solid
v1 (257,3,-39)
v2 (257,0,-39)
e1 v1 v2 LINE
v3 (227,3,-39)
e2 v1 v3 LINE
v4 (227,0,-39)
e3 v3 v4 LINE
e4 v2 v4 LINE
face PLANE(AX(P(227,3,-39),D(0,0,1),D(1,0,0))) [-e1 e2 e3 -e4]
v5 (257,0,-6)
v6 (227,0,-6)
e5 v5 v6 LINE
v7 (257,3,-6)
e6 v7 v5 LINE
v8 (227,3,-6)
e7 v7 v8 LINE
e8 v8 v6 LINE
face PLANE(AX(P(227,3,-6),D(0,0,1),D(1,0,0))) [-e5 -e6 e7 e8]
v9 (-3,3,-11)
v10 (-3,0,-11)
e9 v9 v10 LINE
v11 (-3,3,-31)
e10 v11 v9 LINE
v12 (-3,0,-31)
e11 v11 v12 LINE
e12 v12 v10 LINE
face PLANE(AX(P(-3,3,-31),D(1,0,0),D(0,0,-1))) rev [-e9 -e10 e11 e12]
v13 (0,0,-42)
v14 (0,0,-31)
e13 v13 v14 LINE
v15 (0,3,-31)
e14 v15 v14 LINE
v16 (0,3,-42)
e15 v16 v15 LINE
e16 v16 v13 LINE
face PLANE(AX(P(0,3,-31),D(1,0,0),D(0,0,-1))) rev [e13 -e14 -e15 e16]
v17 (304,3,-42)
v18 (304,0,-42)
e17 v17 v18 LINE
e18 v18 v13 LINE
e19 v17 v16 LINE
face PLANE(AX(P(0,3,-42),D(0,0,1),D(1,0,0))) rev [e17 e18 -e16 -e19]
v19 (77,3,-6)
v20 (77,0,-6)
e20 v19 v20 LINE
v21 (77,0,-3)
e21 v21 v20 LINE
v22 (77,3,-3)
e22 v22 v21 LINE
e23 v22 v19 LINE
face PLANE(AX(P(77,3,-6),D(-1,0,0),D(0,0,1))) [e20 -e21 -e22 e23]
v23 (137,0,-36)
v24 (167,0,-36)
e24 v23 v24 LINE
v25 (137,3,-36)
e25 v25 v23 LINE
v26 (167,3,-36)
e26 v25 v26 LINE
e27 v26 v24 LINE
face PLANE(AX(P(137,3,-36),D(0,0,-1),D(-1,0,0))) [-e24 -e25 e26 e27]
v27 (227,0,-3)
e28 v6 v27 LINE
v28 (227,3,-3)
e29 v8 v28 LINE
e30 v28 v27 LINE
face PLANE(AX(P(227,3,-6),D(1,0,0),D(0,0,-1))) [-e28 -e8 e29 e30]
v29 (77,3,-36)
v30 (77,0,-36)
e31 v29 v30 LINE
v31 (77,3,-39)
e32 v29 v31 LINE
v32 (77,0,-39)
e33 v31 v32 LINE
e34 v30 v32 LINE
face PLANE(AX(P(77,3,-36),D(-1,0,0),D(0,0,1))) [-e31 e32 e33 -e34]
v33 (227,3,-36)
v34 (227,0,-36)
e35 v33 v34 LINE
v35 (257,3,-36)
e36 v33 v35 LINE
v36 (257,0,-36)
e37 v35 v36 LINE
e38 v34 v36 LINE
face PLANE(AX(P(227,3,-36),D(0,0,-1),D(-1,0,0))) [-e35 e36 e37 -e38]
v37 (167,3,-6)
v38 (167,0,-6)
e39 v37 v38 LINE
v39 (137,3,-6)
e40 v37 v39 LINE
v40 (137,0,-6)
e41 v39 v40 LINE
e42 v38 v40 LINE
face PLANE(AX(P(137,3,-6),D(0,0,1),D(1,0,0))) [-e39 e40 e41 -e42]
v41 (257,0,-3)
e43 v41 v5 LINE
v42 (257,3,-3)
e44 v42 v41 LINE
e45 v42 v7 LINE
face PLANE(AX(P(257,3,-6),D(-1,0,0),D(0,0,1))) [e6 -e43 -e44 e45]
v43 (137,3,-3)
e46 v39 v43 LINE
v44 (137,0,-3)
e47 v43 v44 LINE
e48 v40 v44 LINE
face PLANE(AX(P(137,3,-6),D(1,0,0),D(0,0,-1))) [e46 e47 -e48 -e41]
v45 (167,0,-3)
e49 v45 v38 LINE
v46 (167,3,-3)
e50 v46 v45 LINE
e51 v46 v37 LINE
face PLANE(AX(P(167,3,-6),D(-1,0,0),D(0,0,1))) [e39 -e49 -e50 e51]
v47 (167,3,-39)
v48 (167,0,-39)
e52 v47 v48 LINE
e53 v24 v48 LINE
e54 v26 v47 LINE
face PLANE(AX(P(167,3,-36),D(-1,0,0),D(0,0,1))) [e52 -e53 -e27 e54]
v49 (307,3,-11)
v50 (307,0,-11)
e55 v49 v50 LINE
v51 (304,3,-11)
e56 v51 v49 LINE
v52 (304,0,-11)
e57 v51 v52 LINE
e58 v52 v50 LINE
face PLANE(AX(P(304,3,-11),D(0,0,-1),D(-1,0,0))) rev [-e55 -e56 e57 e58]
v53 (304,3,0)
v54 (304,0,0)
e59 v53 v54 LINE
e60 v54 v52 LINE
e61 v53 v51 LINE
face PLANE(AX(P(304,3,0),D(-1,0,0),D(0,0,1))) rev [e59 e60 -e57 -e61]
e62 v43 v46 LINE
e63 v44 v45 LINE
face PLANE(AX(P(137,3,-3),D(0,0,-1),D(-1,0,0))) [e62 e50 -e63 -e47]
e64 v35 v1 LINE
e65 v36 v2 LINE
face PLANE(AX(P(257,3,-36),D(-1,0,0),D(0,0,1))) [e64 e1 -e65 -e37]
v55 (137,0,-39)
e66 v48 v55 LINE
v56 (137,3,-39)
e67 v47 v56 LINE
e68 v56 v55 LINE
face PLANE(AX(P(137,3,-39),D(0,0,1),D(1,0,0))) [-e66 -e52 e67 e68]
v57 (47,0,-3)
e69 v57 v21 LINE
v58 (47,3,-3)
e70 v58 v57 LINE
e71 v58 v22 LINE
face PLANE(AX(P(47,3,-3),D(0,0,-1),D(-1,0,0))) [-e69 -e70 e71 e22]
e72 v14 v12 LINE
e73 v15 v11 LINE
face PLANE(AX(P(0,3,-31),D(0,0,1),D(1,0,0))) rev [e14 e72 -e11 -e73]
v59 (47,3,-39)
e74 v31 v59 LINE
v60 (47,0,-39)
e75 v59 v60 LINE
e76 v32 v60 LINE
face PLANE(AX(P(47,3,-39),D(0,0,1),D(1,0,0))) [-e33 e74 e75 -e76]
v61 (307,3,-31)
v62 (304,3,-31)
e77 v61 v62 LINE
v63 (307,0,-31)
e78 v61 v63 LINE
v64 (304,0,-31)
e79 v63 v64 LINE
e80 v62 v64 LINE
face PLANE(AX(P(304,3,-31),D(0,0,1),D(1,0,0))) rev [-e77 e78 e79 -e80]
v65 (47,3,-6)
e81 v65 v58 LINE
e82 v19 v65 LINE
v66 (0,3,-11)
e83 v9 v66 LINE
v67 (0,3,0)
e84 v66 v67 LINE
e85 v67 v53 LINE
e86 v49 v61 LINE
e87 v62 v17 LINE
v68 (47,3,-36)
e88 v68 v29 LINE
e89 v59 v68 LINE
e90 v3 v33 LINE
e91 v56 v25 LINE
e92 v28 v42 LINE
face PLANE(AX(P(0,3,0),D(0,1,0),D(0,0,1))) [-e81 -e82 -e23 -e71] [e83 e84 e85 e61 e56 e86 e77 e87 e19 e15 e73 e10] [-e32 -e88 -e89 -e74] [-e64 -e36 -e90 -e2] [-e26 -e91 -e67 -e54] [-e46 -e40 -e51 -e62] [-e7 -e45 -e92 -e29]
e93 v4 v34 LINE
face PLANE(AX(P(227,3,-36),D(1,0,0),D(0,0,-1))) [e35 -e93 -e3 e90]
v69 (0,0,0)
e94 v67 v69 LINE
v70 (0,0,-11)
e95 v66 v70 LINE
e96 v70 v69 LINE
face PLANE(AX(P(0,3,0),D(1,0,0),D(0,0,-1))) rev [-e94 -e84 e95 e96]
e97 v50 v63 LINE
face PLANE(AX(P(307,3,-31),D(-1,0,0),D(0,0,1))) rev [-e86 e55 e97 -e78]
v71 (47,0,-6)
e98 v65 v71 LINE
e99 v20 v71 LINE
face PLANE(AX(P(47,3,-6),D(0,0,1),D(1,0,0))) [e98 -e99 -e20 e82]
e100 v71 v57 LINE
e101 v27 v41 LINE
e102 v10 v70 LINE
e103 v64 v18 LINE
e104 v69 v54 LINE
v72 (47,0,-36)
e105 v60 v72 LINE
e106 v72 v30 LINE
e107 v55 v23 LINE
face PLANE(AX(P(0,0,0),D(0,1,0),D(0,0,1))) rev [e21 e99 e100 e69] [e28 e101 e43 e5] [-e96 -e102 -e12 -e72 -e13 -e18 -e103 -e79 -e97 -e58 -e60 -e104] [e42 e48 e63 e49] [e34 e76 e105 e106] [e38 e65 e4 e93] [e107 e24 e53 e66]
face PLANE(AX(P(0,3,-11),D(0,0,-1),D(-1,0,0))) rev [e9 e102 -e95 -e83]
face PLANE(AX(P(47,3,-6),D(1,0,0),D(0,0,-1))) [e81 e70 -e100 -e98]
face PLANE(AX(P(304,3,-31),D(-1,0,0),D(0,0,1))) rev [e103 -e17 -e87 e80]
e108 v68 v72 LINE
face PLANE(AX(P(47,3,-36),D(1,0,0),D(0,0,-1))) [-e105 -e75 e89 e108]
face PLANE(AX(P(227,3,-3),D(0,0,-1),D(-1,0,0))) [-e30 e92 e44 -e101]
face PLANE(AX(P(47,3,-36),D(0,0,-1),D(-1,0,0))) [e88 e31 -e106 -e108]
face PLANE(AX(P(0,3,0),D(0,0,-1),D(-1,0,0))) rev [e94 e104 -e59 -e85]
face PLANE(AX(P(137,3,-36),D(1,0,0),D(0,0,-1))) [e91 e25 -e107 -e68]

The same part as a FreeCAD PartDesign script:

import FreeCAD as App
import Part
import Sketcher

V = App.Vector
Q = App.Units.Quantity

doc = App.newDocument("Part")
body = doc.addObject("PartDesign::Body", "Body")

# Sketch on XZ plane
sketch1 = body.newObject("Sketcher::SketchObject", "Sketch")
sketch1.AttachmentSupport = (doc.getObject("XZ_Plane"), [""])
sketch1.MapMode = "FlatFace"
sketch1.addGeometry([
    Part.LineSegment(V(0, 0, 0), V(304, 0, 0)),  # 0
    Part.LineSegment(V(304, 0, 0), V(304, -11, 0)),  # 1
    Part.LineSegment(V(304, -11, 0), V(307, -11, 0)),  # 2
    Part.LineSegment(V(307, -11, 0), V(307, -31, 0)),  # 3
    Part.LineSegment(V(307, -31, 0), V(304, -31, 0)),  # 4
    Part.LineSegment(V(304, -31, 0), V(304, -42, 0)),  # 5
    Part.LineSegment(V(304, -42, 0), V(0, -42, 0)),  # 6
    Part.LineSegment(V(0, -42, 0), V(0, -31, 0)),  # 7
    Part.LineSegment(V(0, -31, 0), V(-3, -31, 0)),  # 8
    Part.LineSegment(V(-3, -31, 0), V(-3, -11, 0)),  # 9
    Part.LineSegment(V(-3, -11, 0), V(0, -11, 0)),  # 10
    Part.LineSegment(V(0, -11, 0), V(0, 0, 0)),  # 11
    Part.LineSegment(V(77, -3, 0), V(47, -3, 0)),  # 12
    Part.LineSegment(V(47, -3, 0), V(47, -6, 0)),  # 13
    Part.LineSegment(V(47, -6, 0), V(77, -6, 0)),  # 14
    Part.LineSegment(V(77, -6, 0), V(77, -3, 0)),  # 15
    Part.LineSegment(V(167, -3, 0), V(137, -3, 0)),  # 16
    Part.LineSegment(V(137, -3, 0), V(137, -6, 0)),  # 17
    Part.LineSegment(V(137, -6, 0), V(167, -6, 0)),  # 18
    Part.LineSegment(V(167, -6, 0), V(167, -3, 0)),  # 19
    Part.LineSegment(V(257, -3, 0), V(227, -3, 0)),  # 20
    Part.LineSegment(V(227, -3, 0), V(227, -6, 0)),  # 21
    Part.LineSegment(V(227, -6, 0), V(257, -6, 0)),  # 22
    Part.LineSegment(V(257, -6, 0), V(257, -3, 0)),  # 23
    Part.LineSegment(V(77, -36, 0), V(47, -36, 0)),  # 24
    Part.LineSegment(V(47, -36, 0), V(47, -39, 0)),  # 25
    Part.LineSegment(V(47, -39, 0), V(77, -39, 0)),  # 26
    Part.LineSegment(V(77, -39, 0), V(77, -36, 0)),  # 27
    Part.LineSegment(V(167, -36, 0), V(137, -36, 0)),  # 28
    Part.LineSegment(V(137, -36, 0), V(137, -39, 0)),  # 29
    Part.LineSegment(V(137, -39, 0), V(167, -39, 0)),  # 30
    Part.LineSegment(V(167, -39, 0), V(167, -36, 0)),  # 31
    Part.LineSegment(V(257, -36, 0), V(227, -36, 0)),  # 32
    Part.LineSegment(V(227, -36, 0), V(227, -39, 0)),  # 33
    Part.LineSegment(V(227, -39, 0), V(257, -39, 0)),  # 34
    Part.LineSegment(V(257, -39, 0), V(257, -36, 0)),  # 35
], False)
sketch1.addConstraint([
    Sketcher.Constraint("Coincident", 0, 2, 1, 1),
    Sketcher.Constraint("Coincident", 1, 2, 2, 1),
    Sketcher.Constraint("Coincident", 2, 2, 3, 1),
    Sketcher.Constraint("Coincident", 3, 2, 4, 1),
    Sketcher.Constraint("Coincident", 4, 2, 5, 1),
    Sketcher.Constraint("Coincident", 5, 2, 6, 1),
    Sketcher.Constraint("Coincident", 6, 2, 7, 1),
    Sketcher.Constraint("Coincident", 7, 2, 8, 1),
    Sketcher.Constraint("Coincident", 8, 2, 9, 1),
    Sketcher.Constraint("Coincident", 9, 2, 10, 1),
    Sketcher.Constraint("Coincident", 10, 2, 11, 1),
    Sketcher.Constraint("Coincident", 11, 2, 0, 1),
    Sketcher.Constraint("Coincident", 12, 2, 13, 1),
    Sketcher.Constraint("Coincident", 13, 2, 14, 1),
    Sketcher.Constraint("Coincident", 14, 2, 15, 1),
    Sketcher.Constraint("Coincident", 15, 2, 12, 1),
    Sketcher.Constraint("Coincident", 16, 2, 17, 1),
    Sketcher.Constraint("Coincident", 17, 2, 18, 1),
    Sketcher.Constraint("Coincident", 18, 2, 19, 1),
    Sketcher.Constraint("Coincident", 19, 2, 16, 1),
    Sketcher.Constraint("Coincident", 20, 2, 21, 1),
    Sketcher.Constraint("Coincident", 21, 2, 22, 1),
    Sketcher.Constraint("Coincident", 22, 2, 23, 1),
    Sketcher.Constraint("Coincident", 23, 2, 20, 1),
    Sketcher.Constraint("Coincident", 24, 2, 25, 1),
    Sketcher.Constraint("Coincident", 25, 2, 26, 1),
    Sketcher.Constraint("Coincident", 26, 2, 27, 1),
    Sketcher.Constraint("Coincident", 27, 2, 24, 1),
    Sketcher.Constraint("Coincident", 28, 2, 29, 1),
    Sketcher.Constraint("Coincident", 29, 2, 30, 1),
    Sketcher.Constraint("Coincident", 30, 2, 31, 1),
    Sketcher.Constraint("Coincident", 31, 2, 28, 1),
    Sketcher.Constraint("Coincident", 32, 2, 33, 1),
    Sketcher.Constraint("Coincident", 33, 2, 34, 1),
    Sketcher.Constraint("Coincident", 34, 2, 35, 1),
    Sketcher.Constraint("Coincident", 35, 2, 32, 1),
    Sketcher.Constraint("Horizontal", 0),
    Sketcher.Constraint("Vertical", 1),
    Sketcher.Constraint("Horizontal", 2),
    Sketcher.Constraint("Vertical", 3),
    Sketcher.Constraint("Horizontal", 4),
    Sketcher.Constraint("Vertical", 5),
    Sketcher.Constraint("Horizontal", 6),
    Sketcher.Constraint("Vertical", 7),
    Sketcher.Constraint("Horizontal", 8),
    Sketcher.Constraint("Vertical", 9),
    Sketcher.Constraint("Horizontal", 10),
    Sketcher.Constraint("Vertical", 11),
    Sketcher.Constraint("Horizontal", 12),
    Sketcher.Constraint("Vertical", 13),
    Sketcher.Constraint("Horizontal", 14),
    Sketcher.Constraint("Vertical", 15),
    Sketcher.Constraint("Horizontal", 16),
    Sketcher.Constraint("Vertical", 17),
    Sketcher.Constraint("Horizontal", 18),
    Sketcher.Constraint("Vertical", 19),
    Sketcher.Constraint("Horizontal", 20),
    Sketcher.Constraint("Vertical", 21),
    Sketcher.Constraint("Horizontal", 22),
    Sketcher.Constraint("Vertical", 23),
    Sketcher.Constraint("Horizontal", 24),
    Sketcher.Constraint("Vertical", 25),
    Sketcher.Constraint("Horizontal", 26),
    Sketcher.Constraint("Vertical", 27),
    Sketcher.Constraint("Horizontal", 28),
    Sketcher.Constraint("Vertical", 29),
    Sketcher.Constraint("Horizontal", 30),
    Sketcher.Constraint("Vertical", 31),
    Sketcher.Constraint("Horizontal", 32),
    Sketcher.Constraint("Vertical", 33),
    Sketcher.Constraint("Horizontal", 34),
    Sketcher.Constraint("Vertical", 35),
    Sketcher.Constraint("Coincident", 11, 2, -1, 1),
    Sketcher.Constraint("PointOnObject", 6, 2, -2),
    Sketcher.Constraint("Horizontal", 4, 2, 7, 2),
    Sketcher.Constraint("Horizontal", 2, 2, 9, 2),
    Sketcher.Constraint("Horizontal", 15, 2, 16, 2),
    Sketcher.Constraint("Horizontal", 14, 2, 17, 2),
    Sketcher.Constraint("Horizontal", 19, 2, 20, 2),
    Sketcher.Constraint("Horizontal", 18, 2, 21, 2),
    Sketcher.Constraint("Horizontal", 27, 2, 28, 2),
    Sketcher.Constraint("Horizontal", 26, 2, 29, 2),
    Sketcher.Constraint("Horizontal", 31, 2, 32, 2),
    Sketcher.Constraint("Horizontal", 30, 2, 33, 2),
    Sketcher.Constraint("Vertical", 1, 2, 4, 2),
    Sketcher.Constraint("Vertical", 13, 2, 24, 2),
    Sketcher.Constraint("Vertical", 15, 2, 26, 2),
    Sketcher.Constraint("Vertical", 17, 2, 28, 2),
    Sketcher.Constraint("Vertical", 19, 2, 30, 2),
    Sketcher.Constraint("Vertical", 21, 2, 32, 2),
    Sketcher.Constraint("Vertical", 23, 2, 34, 2),
    Sketcher.Constraint("Equal", 4, 8),
    Sketcher.Constraint("Equal", 14, 16),
    Sketcher.Constraint("Equal", 18, 20),
    Sketcher.Constraint("Equal", 1, 5),
    Sketcher.Constraint("Equal", 10, 13),
    Sketcher.Constraint("Equal", 23, 25),
    Sketcher.Constraint("DistanceX", 0, 1, 0, 2, Q("304 mm")),
    Sketcher.Constraint("DistanceX", 2, 1, 2, 2, Q("3 mm")),
    Sketcher.Constraint("DistanceX", 12, 2, 12, 1, Q("30 mm")),
    Sketcher.Constraint("DistanceY", 1, 2, 1, 1, Q("11 mm")),
    Sketcher.Constraint("DistanceY", 3, 2, 3, 1, Q("20 mm")),
    Sketcher.Constraint("DistanceX", -1, 1, 12, 2, Q("47 mm")),
    Sketcher.Constraint("DistanceY", 12, 2, -1, 1, Q("3 mm")),
    Sketcher.Constraint("DistanceX", -1, 1, 16, 2, Q("137 mm")),
    Sketcher.Constraint("DistanceX", -1, 1, 20, 2, Q("227 mm")),
    Sketcher.Constraint("DistanceY", 24, 2, -1, 1, Q("36 mm")),
])
pad1 = body.newObject("PartDesign::Pad", "Pad")
pad1.Profile = sketch1
pad1.Length = 3
pad1.Reversed = True

doc.recompute()
